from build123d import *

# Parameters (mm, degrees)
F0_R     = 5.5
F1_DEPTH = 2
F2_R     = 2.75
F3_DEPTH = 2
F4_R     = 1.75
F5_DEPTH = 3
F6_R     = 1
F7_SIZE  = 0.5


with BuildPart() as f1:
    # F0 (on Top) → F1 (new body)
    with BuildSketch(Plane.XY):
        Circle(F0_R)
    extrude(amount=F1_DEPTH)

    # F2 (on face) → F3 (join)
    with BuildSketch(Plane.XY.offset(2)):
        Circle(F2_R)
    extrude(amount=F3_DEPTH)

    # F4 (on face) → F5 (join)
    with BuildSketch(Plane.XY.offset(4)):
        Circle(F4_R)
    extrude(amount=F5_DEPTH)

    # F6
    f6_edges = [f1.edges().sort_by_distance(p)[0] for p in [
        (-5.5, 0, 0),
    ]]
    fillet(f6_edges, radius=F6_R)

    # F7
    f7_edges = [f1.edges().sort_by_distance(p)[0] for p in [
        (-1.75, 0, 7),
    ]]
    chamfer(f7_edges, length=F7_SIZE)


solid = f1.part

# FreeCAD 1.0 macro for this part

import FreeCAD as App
import Part
import Sketcher

V = App.Vector


def edges_at(feature, points):
    """Names of the edges that pass closest to the given points."""
    edges = feature.Shape.Edges
    near = lambda p: min(range(len(edges)), key=lambda i: edges[i].distToShape(Part.Vertex(*p))[0])
    return sorted({f"Edge{near(p) + 1}" for p in points})

doc = App.newDocument("Part")
params = doc.addObject("Spreadsheet::Sheet", "Params")
for row, (alias, value) in enumerate([
    ("sketch1_diameter", "11 mm"),
    ("pad1_length", "2 mm"),
    ("sketch2_diameter", "5.5 mm"),
    ("pad2_length", "2 mm"),
    ("sketch3_diameter", "3.5 mm"),
    ("pad3_length", "3 mm"),
    ("fillet_radius", "1 mm"),
    ("chamfer_size", "0.5 mm"),
], start=1):
    params.set(f"A{row}", alias)
    params.set(f"B{row}", "=" + value)
    params.setAlias(f"B{row}", alias)

body = doc.addObject("PartDesign::Body", "Body")

# Sketch on XY plane
sketch1 = body.newObject("Sketcher::SketchObject", "Sketch")
sketch1.AttachmentSupport = (doc.getObject("XY_Plane"), [""])
sketch1.MapMode = "FlatFace"
sketch1.addGeometry(Part.Circle(V(0, 0, 0), V(0, 0, 1), 6), False)
sketch1.addConstraint(Sketcher.Constraint("Coincident", 0, 3, -1, 1))
sketch1.addConstraint(Sketcher.Constraint("Diameter", 0, 11.0))
sketch1.setExpression("Constraints[1]", "Params.sketch1_diameter")
pad1 = body.newObject("PartDesign::Pad", "Pad")
pad1.Profile = sketch1
pad1.setExpression("Length", "Params.pad1_length")

# Sketch on XY plane
sketch2 = body.newObject("Sketcher::SketchObject", "Sketch001")
sketch2.AttachmentSupport = (doc.getObject("XY_Plane"), [""])
sketch2.MapMode = "FlatFace"
sketch2.AttachmentOffset = App.Placement(V(0, 0, 2), App.Rotation())
sketch2.addGeometry(Part.Circle(V(0, 0, 0), V(0, 0, 1), 2.8), False)
sketch2.addConstraint(Sketcher.Constraint("Coincident", 0, 3, -1, 1))
sketch2.addConstraint(Sketcher.Constraint("Diameter", 0, 5.5))
sketch2.setExpression("Constraints[1]", "Params.sketch2_diameter")
pad2 = body.newObject("PartDesign::Pad", "Pad001")
pad2.Profile = sketch2
pad2.setExpression("Length", "Params.pad2_length")

# Sketch on XY plane
sketch3 = body.newObject("Sketcher::SketchObject", "Sketch002")
sketch3.AttachmentSupport = (doc.getObject("XY_Plane"), [""])
sketch3.MapMode = "FlatFace"
sketch3.AttachmentOffset = App.Placement(V(0, 0, 4), App.Rotation())
sketch3.addGeometry(Part.Circle(V(0, 0, 0), V(0, 0, 1), 1.8), False)
sketch3.addConstraint(Sketcher.Constraint("Coincident", 0, 3, -1, 1))
sketch3.addConstraint(Sketcher.Constraint("Diameter", 0, 3.5))
sketch3.setExpression("Constraints[1]", "Params.sketch3_diameter")
pad3 = body.newObject("PartDesign::Pad", "Pad002")
pad3.Profile = sketch3
pad3.setExpression("Length", "Params.pad3_length")
doc.recompute()

fillet = body.newObject("PartDesign::Fillet", "Fillet")
fillet.Base = (pad3, edges_at(pad3, [(-5.5, 0, 0)]))
fillet.setExpression("Radius", "Params.fillet_radius")
doc.recompute()

chamfer = body.newObject("PartDesign::Chamfer", "Chamfer")
chamfer.Base = (fillet, edges_at(fillet, [(-1.75, 0, 7)]))
chamfer.setExpression("Size", "Params.chamfer_size")

doc.recompute()
